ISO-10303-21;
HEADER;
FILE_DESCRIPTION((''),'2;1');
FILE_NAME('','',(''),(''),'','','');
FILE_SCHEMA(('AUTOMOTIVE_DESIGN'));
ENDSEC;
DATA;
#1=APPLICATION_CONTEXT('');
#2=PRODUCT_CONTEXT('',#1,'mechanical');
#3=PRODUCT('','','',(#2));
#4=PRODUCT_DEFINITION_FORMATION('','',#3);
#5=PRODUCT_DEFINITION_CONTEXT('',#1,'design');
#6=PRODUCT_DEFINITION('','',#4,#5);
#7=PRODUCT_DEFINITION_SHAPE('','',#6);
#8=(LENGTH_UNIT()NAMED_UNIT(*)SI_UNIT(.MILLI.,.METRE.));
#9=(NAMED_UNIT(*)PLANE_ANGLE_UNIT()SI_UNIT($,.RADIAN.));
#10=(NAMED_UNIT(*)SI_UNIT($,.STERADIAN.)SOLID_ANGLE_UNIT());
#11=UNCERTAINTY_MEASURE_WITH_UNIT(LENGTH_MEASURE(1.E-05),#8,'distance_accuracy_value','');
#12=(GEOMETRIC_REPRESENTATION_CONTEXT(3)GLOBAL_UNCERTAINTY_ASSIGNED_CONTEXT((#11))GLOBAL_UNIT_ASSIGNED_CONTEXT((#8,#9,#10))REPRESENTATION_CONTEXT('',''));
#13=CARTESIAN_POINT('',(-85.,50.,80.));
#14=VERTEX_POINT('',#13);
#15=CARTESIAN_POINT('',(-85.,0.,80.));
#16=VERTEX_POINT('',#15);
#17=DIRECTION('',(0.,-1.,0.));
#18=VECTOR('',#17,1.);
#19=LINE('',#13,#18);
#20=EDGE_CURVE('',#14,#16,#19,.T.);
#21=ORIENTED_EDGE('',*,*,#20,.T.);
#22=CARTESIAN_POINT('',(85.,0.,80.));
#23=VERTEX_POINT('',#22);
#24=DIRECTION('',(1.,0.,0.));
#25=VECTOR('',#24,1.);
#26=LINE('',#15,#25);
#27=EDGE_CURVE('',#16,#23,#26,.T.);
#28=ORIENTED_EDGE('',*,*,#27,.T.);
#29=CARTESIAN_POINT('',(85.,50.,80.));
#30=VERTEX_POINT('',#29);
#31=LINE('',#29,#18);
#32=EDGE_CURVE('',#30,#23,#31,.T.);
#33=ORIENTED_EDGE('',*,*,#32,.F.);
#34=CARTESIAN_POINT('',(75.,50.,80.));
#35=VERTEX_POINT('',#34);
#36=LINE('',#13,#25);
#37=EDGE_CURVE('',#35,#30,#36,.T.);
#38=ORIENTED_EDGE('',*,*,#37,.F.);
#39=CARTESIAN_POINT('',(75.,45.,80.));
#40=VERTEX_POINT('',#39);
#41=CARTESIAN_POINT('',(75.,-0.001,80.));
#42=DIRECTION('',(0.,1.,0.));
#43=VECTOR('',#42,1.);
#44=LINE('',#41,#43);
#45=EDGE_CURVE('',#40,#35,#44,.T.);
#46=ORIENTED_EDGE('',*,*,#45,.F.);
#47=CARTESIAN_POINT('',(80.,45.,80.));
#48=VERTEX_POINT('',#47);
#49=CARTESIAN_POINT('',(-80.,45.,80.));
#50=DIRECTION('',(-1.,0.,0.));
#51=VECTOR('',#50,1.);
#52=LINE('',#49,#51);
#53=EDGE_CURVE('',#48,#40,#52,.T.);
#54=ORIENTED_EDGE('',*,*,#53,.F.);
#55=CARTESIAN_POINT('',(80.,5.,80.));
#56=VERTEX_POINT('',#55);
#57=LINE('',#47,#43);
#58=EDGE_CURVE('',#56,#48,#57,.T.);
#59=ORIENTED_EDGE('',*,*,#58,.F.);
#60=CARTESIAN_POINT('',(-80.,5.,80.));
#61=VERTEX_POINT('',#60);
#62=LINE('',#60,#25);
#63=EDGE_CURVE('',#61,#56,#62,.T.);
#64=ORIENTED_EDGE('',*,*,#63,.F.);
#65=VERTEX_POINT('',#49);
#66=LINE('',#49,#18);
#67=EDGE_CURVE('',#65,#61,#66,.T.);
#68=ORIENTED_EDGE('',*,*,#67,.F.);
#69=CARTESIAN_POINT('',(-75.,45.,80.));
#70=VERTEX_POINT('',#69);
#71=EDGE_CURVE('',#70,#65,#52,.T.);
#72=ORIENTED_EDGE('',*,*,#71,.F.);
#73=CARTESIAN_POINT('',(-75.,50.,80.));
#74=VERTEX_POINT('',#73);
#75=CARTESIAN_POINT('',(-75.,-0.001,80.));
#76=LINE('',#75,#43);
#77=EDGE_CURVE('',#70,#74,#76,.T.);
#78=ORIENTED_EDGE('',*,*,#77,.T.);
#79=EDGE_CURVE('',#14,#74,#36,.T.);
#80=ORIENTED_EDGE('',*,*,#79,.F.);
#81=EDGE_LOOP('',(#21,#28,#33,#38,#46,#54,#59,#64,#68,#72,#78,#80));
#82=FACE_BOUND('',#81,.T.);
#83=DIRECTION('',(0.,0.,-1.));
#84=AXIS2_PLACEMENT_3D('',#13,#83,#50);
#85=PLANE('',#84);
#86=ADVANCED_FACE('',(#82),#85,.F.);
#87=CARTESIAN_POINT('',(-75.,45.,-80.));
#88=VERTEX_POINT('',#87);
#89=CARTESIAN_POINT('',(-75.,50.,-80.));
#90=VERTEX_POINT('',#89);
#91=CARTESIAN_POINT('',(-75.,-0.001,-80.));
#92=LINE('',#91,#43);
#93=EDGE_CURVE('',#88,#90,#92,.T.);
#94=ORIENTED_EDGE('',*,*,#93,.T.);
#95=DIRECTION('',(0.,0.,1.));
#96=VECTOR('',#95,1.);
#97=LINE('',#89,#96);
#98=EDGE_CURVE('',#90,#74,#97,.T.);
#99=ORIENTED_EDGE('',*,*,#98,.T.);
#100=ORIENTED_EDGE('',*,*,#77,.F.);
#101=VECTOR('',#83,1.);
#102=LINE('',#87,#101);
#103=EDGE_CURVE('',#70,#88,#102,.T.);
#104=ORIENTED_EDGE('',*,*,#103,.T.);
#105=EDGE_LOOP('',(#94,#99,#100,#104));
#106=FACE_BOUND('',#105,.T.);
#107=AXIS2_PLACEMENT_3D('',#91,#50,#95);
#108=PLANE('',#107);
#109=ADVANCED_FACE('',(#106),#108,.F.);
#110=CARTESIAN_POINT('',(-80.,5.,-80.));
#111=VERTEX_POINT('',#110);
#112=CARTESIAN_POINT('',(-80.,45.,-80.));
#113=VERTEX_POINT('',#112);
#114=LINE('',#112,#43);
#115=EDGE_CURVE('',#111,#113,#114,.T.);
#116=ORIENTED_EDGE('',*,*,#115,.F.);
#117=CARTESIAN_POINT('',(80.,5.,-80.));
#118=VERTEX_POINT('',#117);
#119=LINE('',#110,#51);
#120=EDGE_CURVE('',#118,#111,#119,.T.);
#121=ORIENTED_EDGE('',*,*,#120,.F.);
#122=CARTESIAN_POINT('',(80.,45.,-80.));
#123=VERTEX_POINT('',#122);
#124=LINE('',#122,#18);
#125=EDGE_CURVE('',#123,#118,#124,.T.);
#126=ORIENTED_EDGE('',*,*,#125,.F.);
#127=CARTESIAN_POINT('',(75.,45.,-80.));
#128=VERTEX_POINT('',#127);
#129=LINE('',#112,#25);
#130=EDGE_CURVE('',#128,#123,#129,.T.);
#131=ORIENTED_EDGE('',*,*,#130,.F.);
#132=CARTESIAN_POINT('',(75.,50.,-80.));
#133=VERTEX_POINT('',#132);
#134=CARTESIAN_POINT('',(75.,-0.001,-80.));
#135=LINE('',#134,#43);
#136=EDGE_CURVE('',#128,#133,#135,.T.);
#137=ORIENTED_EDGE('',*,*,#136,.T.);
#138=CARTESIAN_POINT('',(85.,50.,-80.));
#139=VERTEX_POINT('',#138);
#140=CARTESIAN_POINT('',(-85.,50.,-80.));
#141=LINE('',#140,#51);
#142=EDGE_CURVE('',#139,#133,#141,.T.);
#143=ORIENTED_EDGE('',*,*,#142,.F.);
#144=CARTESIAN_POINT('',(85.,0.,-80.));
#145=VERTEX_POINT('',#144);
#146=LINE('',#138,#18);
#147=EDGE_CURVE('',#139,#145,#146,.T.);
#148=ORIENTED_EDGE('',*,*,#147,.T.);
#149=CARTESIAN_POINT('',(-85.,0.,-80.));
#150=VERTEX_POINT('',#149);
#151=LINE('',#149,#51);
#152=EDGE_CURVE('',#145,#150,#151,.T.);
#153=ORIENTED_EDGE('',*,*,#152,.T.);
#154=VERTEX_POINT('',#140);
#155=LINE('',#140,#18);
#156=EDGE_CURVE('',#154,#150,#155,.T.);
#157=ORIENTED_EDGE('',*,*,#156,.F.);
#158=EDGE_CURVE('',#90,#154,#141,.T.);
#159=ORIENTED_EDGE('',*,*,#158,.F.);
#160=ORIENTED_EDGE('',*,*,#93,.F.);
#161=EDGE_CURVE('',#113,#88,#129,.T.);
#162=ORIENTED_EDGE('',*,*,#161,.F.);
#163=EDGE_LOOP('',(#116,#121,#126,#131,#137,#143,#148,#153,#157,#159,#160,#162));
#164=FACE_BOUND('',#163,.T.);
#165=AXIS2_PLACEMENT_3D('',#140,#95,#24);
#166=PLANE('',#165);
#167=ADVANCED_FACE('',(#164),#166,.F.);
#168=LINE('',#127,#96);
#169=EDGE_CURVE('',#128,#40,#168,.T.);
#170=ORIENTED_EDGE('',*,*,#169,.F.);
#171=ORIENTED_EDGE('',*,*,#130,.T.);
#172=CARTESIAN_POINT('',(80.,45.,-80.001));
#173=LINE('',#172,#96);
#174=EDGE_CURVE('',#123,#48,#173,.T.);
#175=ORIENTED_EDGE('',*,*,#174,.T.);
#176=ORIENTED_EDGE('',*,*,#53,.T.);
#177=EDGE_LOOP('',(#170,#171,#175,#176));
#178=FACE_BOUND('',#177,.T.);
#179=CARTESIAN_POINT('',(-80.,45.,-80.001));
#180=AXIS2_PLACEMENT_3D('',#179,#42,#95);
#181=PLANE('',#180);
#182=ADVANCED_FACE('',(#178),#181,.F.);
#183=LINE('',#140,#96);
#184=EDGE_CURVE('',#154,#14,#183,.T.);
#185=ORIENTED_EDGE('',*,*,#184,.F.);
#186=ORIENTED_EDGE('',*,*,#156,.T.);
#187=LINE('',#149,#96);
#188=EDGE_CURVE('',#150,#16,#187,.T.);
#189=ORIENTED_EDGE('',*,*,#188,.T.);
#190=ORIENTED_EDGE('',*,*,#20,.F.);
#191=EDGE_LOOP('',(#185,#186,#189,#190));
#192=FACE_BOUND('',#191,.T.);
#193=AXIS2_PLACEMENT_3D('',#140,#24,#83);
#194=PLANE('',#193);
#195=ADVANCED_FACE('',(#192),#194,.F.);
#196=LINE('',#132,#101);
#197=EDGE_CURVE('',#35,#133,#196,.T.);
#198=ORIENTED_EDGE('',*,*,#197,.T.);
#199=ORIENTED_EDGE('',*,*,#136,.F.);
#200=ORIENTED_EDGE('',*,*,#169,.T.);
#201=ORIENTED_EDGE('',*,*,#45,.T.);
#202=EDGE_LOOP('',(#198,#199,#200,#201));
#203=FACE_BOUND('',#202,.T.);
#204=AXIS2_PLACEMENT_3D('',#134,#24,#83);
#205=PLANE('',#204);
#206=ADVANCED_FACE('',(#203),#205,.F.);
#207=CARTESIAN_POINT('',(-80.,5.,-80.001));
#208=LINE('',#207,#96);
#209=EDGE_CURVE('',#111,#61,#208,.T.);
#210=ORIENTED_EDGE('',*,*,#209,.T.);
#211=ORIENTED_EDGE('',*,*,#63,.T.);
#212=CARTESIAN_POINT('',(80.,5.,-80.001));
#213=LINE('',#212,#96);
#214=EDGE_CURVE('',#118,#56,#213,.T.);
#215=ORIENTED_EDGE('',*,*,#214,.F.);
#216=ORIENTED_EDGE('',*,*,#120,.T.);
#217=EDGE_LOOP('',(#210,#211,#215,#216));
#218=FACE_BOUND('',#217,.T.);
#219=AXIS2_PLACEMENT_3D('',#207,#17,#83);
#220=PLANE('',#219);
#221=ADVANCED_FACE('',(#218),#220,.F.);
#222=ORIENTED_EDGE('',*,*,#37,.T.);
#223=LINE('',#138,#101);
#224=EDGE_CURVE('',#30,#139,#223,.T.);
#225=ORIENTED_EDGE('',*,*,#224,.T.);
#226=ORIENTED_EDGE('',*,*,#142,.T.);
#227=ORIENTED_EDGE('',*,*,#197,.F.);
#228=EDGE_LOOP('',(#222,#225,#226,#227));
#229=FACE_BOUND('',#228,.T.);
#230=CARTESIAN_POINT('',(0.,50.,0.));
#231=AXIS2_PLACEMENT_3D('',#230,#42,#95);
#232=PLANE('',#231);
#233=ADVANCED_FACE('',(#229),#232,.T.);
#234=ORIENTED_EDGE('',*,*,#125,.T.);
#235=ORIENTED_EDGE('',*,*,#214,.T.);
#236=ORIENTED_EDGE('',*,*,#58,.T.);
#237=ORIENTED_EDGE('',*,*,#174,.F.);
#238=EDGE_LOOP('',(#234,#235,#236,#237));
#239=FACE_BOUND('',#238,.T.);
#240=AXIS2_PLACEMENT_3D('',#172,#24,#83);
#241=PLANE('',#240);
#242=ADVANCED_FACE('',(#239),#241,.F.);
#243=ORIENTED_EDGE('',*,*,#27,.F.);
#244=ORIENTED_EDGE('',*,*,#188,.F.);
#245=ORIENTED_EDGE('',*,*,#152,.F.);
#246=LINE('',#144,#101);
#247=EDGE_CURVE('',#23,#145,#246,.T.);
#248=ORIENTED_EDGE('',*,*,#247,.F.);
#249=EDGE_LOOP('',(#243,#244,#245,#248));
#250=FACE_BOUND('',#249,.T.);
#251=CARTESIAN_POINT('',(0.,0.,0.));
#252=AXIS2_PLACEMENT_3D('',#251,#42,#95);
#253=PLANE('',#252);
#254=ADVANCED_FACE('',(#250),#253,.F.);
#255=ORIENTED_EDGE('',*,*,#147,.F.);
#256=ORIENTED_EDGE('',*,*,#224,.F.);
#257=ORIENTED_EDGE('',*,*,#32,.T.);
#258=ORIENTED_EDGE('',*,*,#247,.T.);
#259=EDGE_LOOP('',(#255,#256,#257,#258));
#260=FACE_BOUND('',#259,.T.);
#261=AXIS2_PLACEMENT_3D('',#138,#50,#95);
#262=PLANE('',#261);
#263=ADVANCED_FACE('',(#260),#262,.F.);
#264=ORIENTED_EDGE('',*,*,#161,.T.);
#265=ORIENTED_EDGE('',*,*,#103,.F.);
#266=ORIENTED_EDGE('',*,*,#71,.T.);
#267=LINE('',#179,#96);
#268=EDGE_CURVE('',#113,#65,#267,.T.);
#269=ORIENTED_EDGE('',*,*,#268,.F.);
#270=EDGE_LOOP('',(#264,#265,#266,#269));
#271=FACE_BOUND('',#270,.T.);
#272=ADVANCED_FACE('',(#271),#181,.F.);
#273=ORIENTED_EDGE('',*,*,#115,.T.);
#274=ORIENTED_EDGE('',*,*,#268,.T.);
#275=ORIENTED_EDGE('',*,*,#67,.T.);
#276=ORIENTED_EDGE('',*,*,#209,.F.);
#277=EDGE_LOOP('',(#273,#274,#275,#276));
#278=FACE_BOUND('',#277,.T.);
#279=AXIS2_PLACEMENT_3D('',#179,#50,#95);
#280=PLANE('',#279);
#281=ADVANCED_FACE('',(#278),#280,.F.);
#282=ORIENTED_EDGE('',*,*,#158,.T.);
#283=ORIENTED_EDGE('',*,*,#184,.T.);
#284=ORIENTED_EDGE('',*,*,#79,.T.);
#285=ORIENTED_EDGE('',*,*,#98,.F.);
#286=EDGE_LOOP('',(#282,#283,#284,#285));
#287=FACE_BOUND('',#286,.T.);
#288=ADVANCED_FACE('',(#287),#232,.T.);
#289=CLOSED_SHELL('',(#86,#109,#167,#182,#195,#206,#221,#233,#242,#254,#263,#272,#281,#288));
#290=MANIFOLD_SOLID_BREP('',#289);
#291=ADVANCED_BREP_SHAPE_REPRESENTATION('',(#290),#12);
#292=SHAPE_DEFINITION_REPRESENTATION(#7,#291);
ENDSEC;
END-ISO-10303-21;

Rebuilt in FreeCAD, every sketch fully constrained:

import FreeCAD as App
import Part
import Sketcher

V = App.Vector
Q = App.Units.Quantity

doc = App.newDocument("Part")
body = doc.addObject("PartDesign::Body", "Body")

sketch1 = doc.addObject("Sketcher::SketchObject", "Sketch")
body.addObject(sketch1)
sketch1.AttachmentSupport = (doc.XZ_Plane, [""])
sketch1.MapMode = "FlatFace"
sketch1.addGeometry([
    Part.LineSegment(V(-85, -80, 0), V(-85, 80, 0)),
    Part.LineSegment(V(-85, 80, 0), V(85, 80, 0)),
    Part.LineSegment(V(85, 80, 0), V(85, -80, 0)),
    Part.LineSegment(V(85, -80, 0), V(-85, -80, 0)),
], False)
sketch1.addConstraint([
    Sketcher.Constraint("Coincident", 0, 2, 1, 1),
    Sketcher.Constraint("Coincident", 1, 2, 2, 1),
    Sketcher.Constraint("Coincident", 2, 2, 3, 1),
    Sketcher.Constraint("Coincident", 3, 2, 0, 1),
    Sketcher.Constraint("Vertical", 0),
    Sketcher.Constraint("Horizontal", 1),
    Sketcher.Constraint("Vertical", 2),
    Sketcher.Constraint("Horizontal", 3),
    Sketcher.Constraint("Symmetric", 0, 2, 2, 2, -1, 1),
    Sketcher.Constraint("DistanceX", 1, 1, 1, 2, Q("170 mm")),
    Sketcher.Constraint("DistanceY", 0, 1, 0, 2, Q("160 mm")),
])
pad1 = doc.addObject("PartDesign::Pad", "Pad")
body.addObject(pad1)
pad1.Profile = sketch1
pad1.Length = 50
pad1.Reversed = True

sketch2 = doc.addObject("Sketcher::SketchObject", "Sketch001")
body.addObject(sketch2)
sketch2.AttachmentSupport = (doc.XY_Plane, [""])
sketch2.MapMode = "FlatFace"
sketch2.AttachmentOffset = App.Placement(V(0, 0, 80), App.Rotation())
sketch2.addGeometry([
    Part.LineSegment(V(-80, 45, 0), V(-80, 5, 0)),
    Part.LineSegment(V(-80, 5, 0), V(80, 5, 0)),
    Part.LineSegment(V(80, 5, 0), V(80, 45, 0)),
    Part.LineSegment(V(80, 45, 0), V(-80, 45, 0)),
], False)
sketch2.addConstraint([
    Sketcher.Constraint("Coincident", 0, 2, 1, 1),
    Sketcher.Constraint("Coincident", 1, 2, 2, 1),
    Sketcher.Constraint("Coincident", 2, 2, 3, 1),
    Sketcher.Constraint("Coincident", 3, 2, 0, 1),
    Sketcher.Constraint("Vertical", 0),
    Sketcher.Constraint("Horizontal", 1),
    Sketcher.Constraint("Vertical", 2),
    Sketcher.Constraint("Horizontal", 3),
    Sketcher.Constraint("DistanceX", 1, 1, 1, 2, Q("160 mm")),
    Sketcher.Constraint("DistanceY", 0, 2, 0, 1, Q("40 mm")),
    Sketcher.Constraint("DistanceX", 0, 2, -1, 1, Q("80 mm")),
    Sketcher.Constraint("DistanceY", -1, 1, 0, 2, Q("5 mm")),
])
pocket1 = doc.addObject("PartDesign::Pocket", "Pocket")
body.addObject(pocket1)
pocket1.Profile = sketch2
pocket1.Type = "UpToFirst"

sketch3 = doc.addObject("Sketcher::SketchObject", "Sketch002")
body.addObject(sketch3)
sketch3.AttachmentSupport = (doc.XZ_Plane, [""])
sketch3.MapMode = "FlatFace"
sketch3.AttachmentOffset = App.Placement(V(0, 0, -50), App.Rotation())
sketch3.addGeometry([
    Part.LineSegment(V(-75, -80, 0), V(-75, 80, 0)),
    Part.LineSegment(V(-75, 80, 0), V(75, 80, 0)),
    Part.LineSegment(V(75, 80, 0), V(75, -80, 0)),
    Part.LineSegment(V(75, -80, 0), V(-75, -80, 0)),
], False)
sketch3.addConstraint([
    Sketcher.Constraint("Coincident", 0, 2, 1, 1),
    Sketcher.Constraint("Coincident", 1, 2, 2, 1),
    Sketcher.Constraint("Coincident", 2, 2, 3, 1),
    Sketcher.Constraint("Coincident", 3, 2, 0, 1),
    Sketcher.Constraint("Vertical", 0),
    Sketcher.Constraint("Horizontal", 1),
    Sketcher.Constraint("Vertical", 2),
    Sketcher.Constraint("Horizontal", 3),
    Sketcher.Constraint("Symmetric", 0, 2, 2, 2, -1, 1),
    Sketcher.Constraint("DistanceX", 1, 1, 1, 2, Q("150 mm")),
    Sketcher.Constraint("DistanceY", 0, 1, 0, 2, Q("160 mm")),
])
pocket2 = doc.addObject("PartDesign::Pocket", "Pocket001")
body.addObject(pocket2)
pocket2.Profile = sketch3
pocket2.Type = "UpToFirst"
pocket2.Reversed = True

doc.recompute()
